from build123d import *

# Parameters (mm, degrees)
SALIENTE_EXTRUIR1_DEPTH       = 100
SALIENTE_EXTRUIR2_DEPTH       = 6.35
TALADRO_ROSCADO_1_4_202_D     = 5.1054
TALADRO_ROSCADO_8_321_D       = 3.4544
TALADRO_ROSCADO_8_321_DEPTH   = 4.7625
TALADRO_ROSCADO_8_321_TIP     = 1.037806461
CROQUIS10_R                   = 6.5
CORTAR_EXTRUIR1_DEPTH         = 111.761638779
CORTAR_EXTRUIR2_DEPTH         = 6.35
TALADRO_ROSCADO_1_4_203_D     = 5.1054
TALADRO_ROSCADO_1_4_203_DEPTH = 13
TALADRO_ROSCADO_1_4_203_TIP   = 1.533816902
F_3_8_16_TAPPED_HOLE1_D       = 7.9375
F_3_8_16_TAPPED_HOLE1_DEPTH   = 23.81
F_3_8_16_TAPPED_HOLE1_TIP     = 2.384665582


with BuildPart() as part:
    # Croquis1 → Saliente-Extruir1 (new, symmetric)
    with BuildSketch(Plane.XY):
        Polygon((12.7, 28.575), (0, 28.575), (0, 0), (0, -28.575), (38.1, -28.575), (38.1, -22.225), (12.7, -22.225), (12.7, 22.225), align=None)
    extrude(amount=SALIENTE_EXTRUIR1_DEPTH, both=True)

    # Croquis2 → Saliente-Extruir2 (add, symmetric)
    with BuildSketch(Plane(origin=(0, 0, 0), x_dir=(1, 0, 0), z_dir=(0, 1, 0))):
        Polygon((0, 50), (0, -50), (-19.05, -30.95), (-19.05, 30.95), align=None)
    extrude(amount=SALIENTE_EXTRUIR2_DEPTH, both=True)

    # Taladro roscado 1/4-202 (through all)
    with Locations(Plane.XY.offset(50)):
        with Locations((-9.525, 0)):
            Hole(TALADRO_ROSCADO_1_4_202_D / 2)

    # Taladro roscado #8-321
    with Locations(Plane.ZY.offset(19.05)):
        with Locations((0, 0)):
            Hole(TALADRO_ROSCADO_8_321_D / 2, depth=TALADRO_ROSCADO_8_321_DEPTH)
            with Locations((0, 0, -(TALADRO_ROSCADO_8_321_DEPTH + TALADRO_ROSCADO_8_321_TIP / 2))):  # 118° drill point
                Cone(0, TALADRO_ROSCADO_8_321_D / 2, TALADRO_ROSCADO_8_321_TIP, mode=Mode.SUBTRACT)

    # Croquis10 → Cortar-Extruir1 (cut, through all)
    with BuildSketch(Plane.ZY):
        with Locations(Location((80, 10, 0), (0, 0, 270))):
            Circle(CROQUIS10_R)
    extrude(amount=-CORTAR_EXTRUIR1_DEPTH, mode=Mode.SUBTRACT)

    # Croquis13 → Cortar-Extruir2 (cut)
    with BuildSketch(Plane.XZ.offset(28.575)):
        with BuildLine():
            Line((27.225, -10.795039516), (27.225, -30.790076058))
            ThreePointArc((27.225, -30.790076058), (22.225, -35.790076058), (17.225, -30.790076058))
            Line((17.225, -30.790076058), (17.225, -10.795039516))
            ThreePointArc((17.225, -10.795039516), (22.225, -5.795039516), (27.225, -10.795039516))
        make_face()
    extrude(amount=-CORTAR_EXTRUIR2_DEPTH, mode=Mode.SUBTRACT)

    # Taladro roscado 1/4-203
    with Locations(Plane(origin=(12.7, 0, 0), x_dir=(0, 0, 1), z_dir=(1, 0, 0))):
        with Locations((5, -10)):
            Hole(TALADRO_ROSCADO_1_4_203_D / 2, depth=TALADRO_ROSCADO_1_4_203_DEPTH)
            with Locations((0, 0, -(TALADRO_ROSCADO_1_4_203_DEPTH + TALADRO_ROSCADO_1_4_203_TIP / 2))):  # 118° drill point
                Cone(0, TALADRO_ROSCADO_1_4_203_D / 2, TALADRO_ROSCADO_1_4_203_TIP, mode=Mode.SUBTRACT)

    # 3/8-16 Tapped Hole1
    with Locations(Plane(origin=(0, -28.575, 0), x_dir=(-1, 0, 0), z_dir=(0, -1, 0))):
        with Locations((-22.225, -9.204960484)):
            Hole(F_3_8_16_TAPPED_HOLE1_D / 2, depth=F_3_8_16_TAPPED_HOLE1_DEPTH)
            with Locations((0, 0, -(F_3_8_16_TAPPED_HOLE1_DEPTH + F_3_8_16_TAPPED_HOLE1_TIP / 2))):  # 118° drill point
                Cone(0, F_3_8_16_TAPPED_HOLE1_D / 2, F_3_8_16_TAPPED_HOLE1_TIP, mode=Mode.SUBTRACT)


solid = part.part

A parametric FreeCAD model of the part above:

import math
import FreeCAD as App
import Part
import Sketcher
Q = App.Units.Quantity

doc = App.newDocument("Part")
body = doc.addObject("PartDesign::Body", "Body")

sketch1 = doc.addObject("Sketcher::SketchObject", "Sketch")
body.addObject(sketch1)
sketch1.AttachmentSupport = (doc.XY_Plane, [""])
sketch1.MapMode = "FlatFace"
sketch1.addGeometry(Part.LineSegment(App.Vector(12.7, 28.575, 0), App.Vector(0, 28.575, 0)), False)
sketch1.addGeometry(Part.LineSegment(App.Vector(0, 28.575, 0), App.Vector(0, -28.575, 0)), False)
sketch1.addGeometry(Part.LineSegment(App.Vector(0, -28.575, 0), App.Vector(38.1, -28.575, 0)), False)
sketch1.addGeometry(Part.LineSegment(App.Vector(38.1, -28.575, 0), App.Vector(38.1, -22.225, 0)), False)
sketch1.addGeometry(Part.LineSegment(App.Vector(38.1, -22.225, 0), App.Vector(12.7, -22.225, 0)), False)
sketch1.addGeometry(Part.LineSegment(App.Vector(12.7, -22.225, 0), App.Vector(12.7, 28.575, 0)), False)
sketch1.addConstraint(Sketcher.Constraint("Coincident", 0, 2, 1, 1))
sketch1.addConstraint(Sketcher.Constraint("Coincident", 1, 2, 2, 1))
sketch1.addConstraint(Sketcher.Constraint("Coincident", 2, 2, 3, 1))
sketch1.addConstraint(Sketcher.Constraint("Coincident", 3, 2, 4, 1))
sketch1.addConstraint(Sketcher.Constraint("Coincident", 4, 2, 5, 1))
sketch1.addConstraint(Sketcher.Constraint("Coincident", 5, 2, 0, 1))
sketch1.addConstraint(Sketcher.Constraint("Horizontal", 0))
sketch1.addConstraint(Sketcher.Constraint("Vertical", 1))
sketch1.addConstraint(Sketcher.Constraint("Horizontal", 2))
sketch1.addConstraint(Sketcher.Constraint("Vertical", 3))
sketch1.addConstraint(Sketcher.Constraint("Horizontal", 4))
sketch1.addConstraint(Sketcher.Constraint("Vertical", 5))
sketch1.addConstraint(Sketcher.Constraint("Symmetric", 0, 2, 1, 2, -1, 1))
sketch1.addConstraint(Sketcher.Constraint("DistanceX", 4, 2, 4, 1, Q("1 in")))
sketch1.addConstraint(Sketcher.Constraint("DistanceY", 5, 1, 5, 2, Q("2 in")))
sketch1.addConstraint(Sketcher.Constraint("DistanceX", 0, 2, 0, 1, Q("0.5 in")))
sketch1.addConstraint(Sketcher.Constraint("DistanceY", 1, 2, 1, 1, Q("2.25 in")))
pad1 = doc.addObject("PartDesign::Pad", "Pad")
body.addObject(pad1)
pad1.Profile = sketch1
pad1.Length = 200
pad1.Midplane = True

sketch2 = doc.addObject("Sketcher::SketchObject", "Sketch001")
body.addObject(sketch2)
sketch2.AttachmentSupport = (doc.XZ_Plane, [""])
sketch2.MapMode = "FlatFace"
sketch2.addGeometry(Part.LineSegment(App.Vector(0, 50, 0), App.Vector(0, -50, 0)), False)
sketch2.addGeometry(Part.LineSegment(App.Vector(0, -50, 0), App.Vector(-19.05, -30.95, 0)), False)
sketch2.addGeometry(Part.LineSegment(App.Vector(-19.05, -30.95, 0), App.Vector(-19.05, 30.95, 0)), False)
sketch2.addGeometry(Part.LineSegment(App.Vector(-19.05, 30.95, 0), App.Vector(0, 50, 0)), False)
sketch2.addConstraint(Sketcher.Constraint("Coincident", 0, 2, 1, 1))
sketch2.addConstraint(Sketcher.Constraint("Coincident", 1, 2, 2, 1))
sketch2.addConstraint(Sketcher.Constraint("Coincident", 2, 2, 3, 1))
sketch2.addConstraint(Sketcher.Constraint("Coincident", 3, 2, 0, 1))
sketch2.addConstraint(Sketcher.Constraint("Vertical", 0))
sketch2.addConstraint(Sketcher.Constraint("Vertical", 2))
sketch2.addConstraint(Sketcher.Constraint("Symmetric", 0, 2, 3, 2, -1, 1))
sketch2.addConstraint(Sketcher.Constraint("Perpendicular", 1, 3))
sketch2.addConstraint(Sketcher.Constraint("Equal", 1, 3))
sketch2.addConstraint(Sketcher.Constraint("DistanceX", 1, 2, -1, 1, Q("0.75 in")))
sketch2.addConstraint(Sketcher.Constraint("DistanceY", 0, 2, 0, 1, 100.0))
pad2 = doc.addObject("PartDesign::Pad", "Pad001")
body.addObject(pad2)
pad2.Profile = sketch2
pad2.Length = Q("0.5 in")
pad2.Midplane = True

sketch3 = doc.addObject("Sketcher::SketchObject", "Sketch002")
body.addObject(sketch3)
sketch3.AttachmentSupport = (doc.XY_Plane, [""])
sketch3.MapMode = "FlatFace"
sketch3.AttachmentOffset = App.Placement(App.Vector(0, 0, 50), App.Rotation())
sketch3.addGeometry(Part.Circle(App.Vector(-9.525, 0, 0), App.Vector(0, 0, 1), 2.5527), False)
sketch3.addConstraint(Sketcher.Constraint("PointOnObject", 0, 3, -1))
sketch3.addConstraint(Sketcher.Constraint("Diameter", 0, Q("0.201 in")))
sketch3.addConstraint(Sketcher.Constraint("DistanceX", 0, 3, -1, 1, Q("0.375 in")))
doc.recompute()
hole = doc.addObject("PartDesign::Hole", "Hole")
body.addObject(hole)
hole.Profile = sketch3
hole.ThreadType = "None"
hole.Diameter = Q("0.201 in")
hole.DepthType = "ThroughAll"

sketch4 = doc.addObject("Sketcher::SketchObject", "Sketch003")
body.addObject(sketch4)
sketch4.AttachmentSupport = (doc.YZ_Plane, [""])
sketch4.MapMode = "FlatFace"
sketch4.AttachmentOffset = App.Placement(App.Vector(0, 0, -0.75 * 25.4), App.Rotation())
sketch4.addGeometry(Part.Circle(App.Vector(0, 0, 0), App.Vector(0, 0, 1), 1.7272), False)
sketch4.addConstraint(Sketcher.Constraint("Coincident", 0, 3, -1, 1))
sketch4.addConstraint(Sketcher.Constraint("Diameter", 0, Q("0.136 in")))
doc.recompute()
hole2 = doc.addObject("PartDesign::Hole", "Hole001")
body.addObject(hole2)
hole2.Profile = sketch4
hole2.ThreadType = "None"
hole2.Diameter = Q("0.136 in")
hole2.DepthType = "Dimension"
hole2.Depth = Q("0.1875 in")
hole2.DrillPoint = "Angled"
hole2.DrillPointAngle = 118
hole2.Reversed = True

sketch5 = doc.addObject("Sketcher::SketchObject", "Sketch004")
body.addObject(sketch5)
sketch5.AttachmentSupport = (doc.YZ_Plane, [""])
sketch5.MapMode = "FlatFace"
sketch5.addGeometry(Part.Circle(App.Vector(10, 80, 0), App.Vector(0, 0, 1), 6.5), False)
sketch5.addConstraint(Sketcher.Constraint("Diameter", 0, 13.0))
sketch5.addConstraint(Sketcher.Constraint("DistanceX", -1, 1, 0, 3, 10.0))
sketch5.addConstraint(Sketcher.Constraint("DistanceY", -1, 1, 0, 3, 80.0))
pocket1 = doc.addObject("PartDesign::Pocket", "Pocket")
body.addObject(pocket1)
pocket1.Profile = sketch5
pocket1.Type = "ThroughAll"
pocket1.Reversed = True

sketch6 = doc.addObject("Sketcher::SketchObject", "Sketch005")
body.addObject(sketch6)
sketch6.AttachmentSupport = (doc.XZ_Plane, [""])
sketch6.MapMode = "FlatFace"
sketch6.AttachmentOffset = App.Placement(App.Vector(0, 0, 1.125 * 25.4), App.Rotation())
sketch6.addGeometry(Part.LineSegment(App.Vector(27.225, -30.790076, 0), App.Vector(27.225, -10.79504, 0)), False)
sketch6.addGeometry(Part.ArcOfCircle(Part.Circle(App.Vector(22.225, -10.79504, 0), App.Vector(0, 0, 1), 5), math.radians(0), math.radians(180)), False)
sketch6.addGeometry(Part.LineSegment(App.Vector(17.225, -10.79504, 0), App.Vector(17.225, -30.790076, 0)), False)
sketch6.addGeometry(Part.ArcOfCircle(Part.Circle(App.Vector(22.225, -30.790076, 0), App.Vector(0, 0, 1), 5), math.radians(180), math.radians(360)), False)
sketch6.addConstraint(Sketcher.Constraint("Tangent", 0, 2, 1, 1))
sketch6.addConstraint(Sketcher.Constraint("Tangent", 1, 2, 2, 1))
sketch6.addConstraint(Sketcher.Constraint("Tangent", 2, 2, 3, 1))
sketch6.addConstraint(Sketcher.Constraint("Tangent", 3, 2, 0, 1))
sketch6.addConstraint(Sketcher.Constraint("Vertical", 0))
sketch6.addConstraint(Sketcher.Constraint("Vertical", 2))
sketch6.addConstraint(Sketcher.Constraint("Radius", 1, 5.0))
sketch6.addConstraint(Sketcher.Constraint("DistanceX", -1, 1, 1, 3, Q("0.875 in")))
sketch6.addConstraint(Sketcher.Constraint("DistanceY", 0, 1, 0, 2, 19.995037))
sketch6.addConstraint(Sketcher.Constraint("DistanceY", 1, 3, -1, 1, 10.79504))
pocket2 = doc.addObject("PartDesign::Pocket", "Pocket001")
body.addObject(pocket2)
pocket2.Profile = sketch6
pocket2.Length = Q("0.25 in")

sketch7 = doc.addObject("Sketcher::SketchObject", "Sketch006")
body.addObject(sketch7)
sketch7.AttachmentSupport = (doc.YZ_Plane, [""])
sketch7.MapMode = "FlatFace"
sketch7.AttachmentOffset = App.Placement(App.Vector(0, 0, 0.5 * 25.4), App.Rotation())
sketch7.addGeometry(Part.Circle(App.Vector(10, 5, 0), App.Vector(0, 0, 1), 2.5527), False)
sketch7.addConstraint(Sketcher.Constraint("Diameter", 0, Q("0.201 in")))
sketch7.addConstraint(Sketcher.Constraint("DistanceX", -1, 1, 0, 3, 10.0))
sketch7.addConstraint(Sketcher.Constraint("DistanceY", -1, 1, 0, 3, 5.0))
doc.recompute()
hole3 = doc.addObject("PartDesign::Hole", "Hole002")
body.addObject(hole3)
hole3.Profile = sketch7
hole3.ThreadType = "None"
hole3.Diameter = Q("0.201 in")
hole3.DepthType = "Dimension"
hole3.Depth = 13
hole3.DrillPoint = "Angled"
hole3.DrillPointAngle = 118

sketch8 = doc.addObject("Sketcher::SketchObject", "Sketch007")
body.addObject(sketch8)
sketch8.AttachmentSupport = (doc.XZ_Plane, [""])
sketch8.MapMode = "FlatFace"
sketch8.AttachmentOffset = App.Placement(App.Vector(0, 0, 1.125 * 25.4), App.Rotation())
sketch8.addGeometry(Part.Circle(App.Vector(22.225, 9.20496, 0), App.Vector(0, 0, 1), 3.96875), False)
sketch8.addConstraint(Sketcher.Constraint("Diameter", 0, Q("0.3125 in")))
sketch8.addConstraint(Sketcher.Constraint("DistanceX", -1, 1, 0, 3, Q("0.875 in")))
sketch8.addConstraint(Sketcher.Constraint("DistanceY", -1, 1, 0, 3, Q("0.3624 in")))
doc.recompute()
hole4 = doc.addObject("PartDesign::Hole", "Hole003")
body.addObject(hole4)
hole4.Profile = sketch8
hole4.ThreadType = "None"
hole4.Diameter = Q("0.3125 in")
hole4.DepthType = "Dimension"
hole4.Depth = 23.81
hole4.DrillPoint = "Angled"
hole4.DrillPointAngle = 118

doc.recompute()
